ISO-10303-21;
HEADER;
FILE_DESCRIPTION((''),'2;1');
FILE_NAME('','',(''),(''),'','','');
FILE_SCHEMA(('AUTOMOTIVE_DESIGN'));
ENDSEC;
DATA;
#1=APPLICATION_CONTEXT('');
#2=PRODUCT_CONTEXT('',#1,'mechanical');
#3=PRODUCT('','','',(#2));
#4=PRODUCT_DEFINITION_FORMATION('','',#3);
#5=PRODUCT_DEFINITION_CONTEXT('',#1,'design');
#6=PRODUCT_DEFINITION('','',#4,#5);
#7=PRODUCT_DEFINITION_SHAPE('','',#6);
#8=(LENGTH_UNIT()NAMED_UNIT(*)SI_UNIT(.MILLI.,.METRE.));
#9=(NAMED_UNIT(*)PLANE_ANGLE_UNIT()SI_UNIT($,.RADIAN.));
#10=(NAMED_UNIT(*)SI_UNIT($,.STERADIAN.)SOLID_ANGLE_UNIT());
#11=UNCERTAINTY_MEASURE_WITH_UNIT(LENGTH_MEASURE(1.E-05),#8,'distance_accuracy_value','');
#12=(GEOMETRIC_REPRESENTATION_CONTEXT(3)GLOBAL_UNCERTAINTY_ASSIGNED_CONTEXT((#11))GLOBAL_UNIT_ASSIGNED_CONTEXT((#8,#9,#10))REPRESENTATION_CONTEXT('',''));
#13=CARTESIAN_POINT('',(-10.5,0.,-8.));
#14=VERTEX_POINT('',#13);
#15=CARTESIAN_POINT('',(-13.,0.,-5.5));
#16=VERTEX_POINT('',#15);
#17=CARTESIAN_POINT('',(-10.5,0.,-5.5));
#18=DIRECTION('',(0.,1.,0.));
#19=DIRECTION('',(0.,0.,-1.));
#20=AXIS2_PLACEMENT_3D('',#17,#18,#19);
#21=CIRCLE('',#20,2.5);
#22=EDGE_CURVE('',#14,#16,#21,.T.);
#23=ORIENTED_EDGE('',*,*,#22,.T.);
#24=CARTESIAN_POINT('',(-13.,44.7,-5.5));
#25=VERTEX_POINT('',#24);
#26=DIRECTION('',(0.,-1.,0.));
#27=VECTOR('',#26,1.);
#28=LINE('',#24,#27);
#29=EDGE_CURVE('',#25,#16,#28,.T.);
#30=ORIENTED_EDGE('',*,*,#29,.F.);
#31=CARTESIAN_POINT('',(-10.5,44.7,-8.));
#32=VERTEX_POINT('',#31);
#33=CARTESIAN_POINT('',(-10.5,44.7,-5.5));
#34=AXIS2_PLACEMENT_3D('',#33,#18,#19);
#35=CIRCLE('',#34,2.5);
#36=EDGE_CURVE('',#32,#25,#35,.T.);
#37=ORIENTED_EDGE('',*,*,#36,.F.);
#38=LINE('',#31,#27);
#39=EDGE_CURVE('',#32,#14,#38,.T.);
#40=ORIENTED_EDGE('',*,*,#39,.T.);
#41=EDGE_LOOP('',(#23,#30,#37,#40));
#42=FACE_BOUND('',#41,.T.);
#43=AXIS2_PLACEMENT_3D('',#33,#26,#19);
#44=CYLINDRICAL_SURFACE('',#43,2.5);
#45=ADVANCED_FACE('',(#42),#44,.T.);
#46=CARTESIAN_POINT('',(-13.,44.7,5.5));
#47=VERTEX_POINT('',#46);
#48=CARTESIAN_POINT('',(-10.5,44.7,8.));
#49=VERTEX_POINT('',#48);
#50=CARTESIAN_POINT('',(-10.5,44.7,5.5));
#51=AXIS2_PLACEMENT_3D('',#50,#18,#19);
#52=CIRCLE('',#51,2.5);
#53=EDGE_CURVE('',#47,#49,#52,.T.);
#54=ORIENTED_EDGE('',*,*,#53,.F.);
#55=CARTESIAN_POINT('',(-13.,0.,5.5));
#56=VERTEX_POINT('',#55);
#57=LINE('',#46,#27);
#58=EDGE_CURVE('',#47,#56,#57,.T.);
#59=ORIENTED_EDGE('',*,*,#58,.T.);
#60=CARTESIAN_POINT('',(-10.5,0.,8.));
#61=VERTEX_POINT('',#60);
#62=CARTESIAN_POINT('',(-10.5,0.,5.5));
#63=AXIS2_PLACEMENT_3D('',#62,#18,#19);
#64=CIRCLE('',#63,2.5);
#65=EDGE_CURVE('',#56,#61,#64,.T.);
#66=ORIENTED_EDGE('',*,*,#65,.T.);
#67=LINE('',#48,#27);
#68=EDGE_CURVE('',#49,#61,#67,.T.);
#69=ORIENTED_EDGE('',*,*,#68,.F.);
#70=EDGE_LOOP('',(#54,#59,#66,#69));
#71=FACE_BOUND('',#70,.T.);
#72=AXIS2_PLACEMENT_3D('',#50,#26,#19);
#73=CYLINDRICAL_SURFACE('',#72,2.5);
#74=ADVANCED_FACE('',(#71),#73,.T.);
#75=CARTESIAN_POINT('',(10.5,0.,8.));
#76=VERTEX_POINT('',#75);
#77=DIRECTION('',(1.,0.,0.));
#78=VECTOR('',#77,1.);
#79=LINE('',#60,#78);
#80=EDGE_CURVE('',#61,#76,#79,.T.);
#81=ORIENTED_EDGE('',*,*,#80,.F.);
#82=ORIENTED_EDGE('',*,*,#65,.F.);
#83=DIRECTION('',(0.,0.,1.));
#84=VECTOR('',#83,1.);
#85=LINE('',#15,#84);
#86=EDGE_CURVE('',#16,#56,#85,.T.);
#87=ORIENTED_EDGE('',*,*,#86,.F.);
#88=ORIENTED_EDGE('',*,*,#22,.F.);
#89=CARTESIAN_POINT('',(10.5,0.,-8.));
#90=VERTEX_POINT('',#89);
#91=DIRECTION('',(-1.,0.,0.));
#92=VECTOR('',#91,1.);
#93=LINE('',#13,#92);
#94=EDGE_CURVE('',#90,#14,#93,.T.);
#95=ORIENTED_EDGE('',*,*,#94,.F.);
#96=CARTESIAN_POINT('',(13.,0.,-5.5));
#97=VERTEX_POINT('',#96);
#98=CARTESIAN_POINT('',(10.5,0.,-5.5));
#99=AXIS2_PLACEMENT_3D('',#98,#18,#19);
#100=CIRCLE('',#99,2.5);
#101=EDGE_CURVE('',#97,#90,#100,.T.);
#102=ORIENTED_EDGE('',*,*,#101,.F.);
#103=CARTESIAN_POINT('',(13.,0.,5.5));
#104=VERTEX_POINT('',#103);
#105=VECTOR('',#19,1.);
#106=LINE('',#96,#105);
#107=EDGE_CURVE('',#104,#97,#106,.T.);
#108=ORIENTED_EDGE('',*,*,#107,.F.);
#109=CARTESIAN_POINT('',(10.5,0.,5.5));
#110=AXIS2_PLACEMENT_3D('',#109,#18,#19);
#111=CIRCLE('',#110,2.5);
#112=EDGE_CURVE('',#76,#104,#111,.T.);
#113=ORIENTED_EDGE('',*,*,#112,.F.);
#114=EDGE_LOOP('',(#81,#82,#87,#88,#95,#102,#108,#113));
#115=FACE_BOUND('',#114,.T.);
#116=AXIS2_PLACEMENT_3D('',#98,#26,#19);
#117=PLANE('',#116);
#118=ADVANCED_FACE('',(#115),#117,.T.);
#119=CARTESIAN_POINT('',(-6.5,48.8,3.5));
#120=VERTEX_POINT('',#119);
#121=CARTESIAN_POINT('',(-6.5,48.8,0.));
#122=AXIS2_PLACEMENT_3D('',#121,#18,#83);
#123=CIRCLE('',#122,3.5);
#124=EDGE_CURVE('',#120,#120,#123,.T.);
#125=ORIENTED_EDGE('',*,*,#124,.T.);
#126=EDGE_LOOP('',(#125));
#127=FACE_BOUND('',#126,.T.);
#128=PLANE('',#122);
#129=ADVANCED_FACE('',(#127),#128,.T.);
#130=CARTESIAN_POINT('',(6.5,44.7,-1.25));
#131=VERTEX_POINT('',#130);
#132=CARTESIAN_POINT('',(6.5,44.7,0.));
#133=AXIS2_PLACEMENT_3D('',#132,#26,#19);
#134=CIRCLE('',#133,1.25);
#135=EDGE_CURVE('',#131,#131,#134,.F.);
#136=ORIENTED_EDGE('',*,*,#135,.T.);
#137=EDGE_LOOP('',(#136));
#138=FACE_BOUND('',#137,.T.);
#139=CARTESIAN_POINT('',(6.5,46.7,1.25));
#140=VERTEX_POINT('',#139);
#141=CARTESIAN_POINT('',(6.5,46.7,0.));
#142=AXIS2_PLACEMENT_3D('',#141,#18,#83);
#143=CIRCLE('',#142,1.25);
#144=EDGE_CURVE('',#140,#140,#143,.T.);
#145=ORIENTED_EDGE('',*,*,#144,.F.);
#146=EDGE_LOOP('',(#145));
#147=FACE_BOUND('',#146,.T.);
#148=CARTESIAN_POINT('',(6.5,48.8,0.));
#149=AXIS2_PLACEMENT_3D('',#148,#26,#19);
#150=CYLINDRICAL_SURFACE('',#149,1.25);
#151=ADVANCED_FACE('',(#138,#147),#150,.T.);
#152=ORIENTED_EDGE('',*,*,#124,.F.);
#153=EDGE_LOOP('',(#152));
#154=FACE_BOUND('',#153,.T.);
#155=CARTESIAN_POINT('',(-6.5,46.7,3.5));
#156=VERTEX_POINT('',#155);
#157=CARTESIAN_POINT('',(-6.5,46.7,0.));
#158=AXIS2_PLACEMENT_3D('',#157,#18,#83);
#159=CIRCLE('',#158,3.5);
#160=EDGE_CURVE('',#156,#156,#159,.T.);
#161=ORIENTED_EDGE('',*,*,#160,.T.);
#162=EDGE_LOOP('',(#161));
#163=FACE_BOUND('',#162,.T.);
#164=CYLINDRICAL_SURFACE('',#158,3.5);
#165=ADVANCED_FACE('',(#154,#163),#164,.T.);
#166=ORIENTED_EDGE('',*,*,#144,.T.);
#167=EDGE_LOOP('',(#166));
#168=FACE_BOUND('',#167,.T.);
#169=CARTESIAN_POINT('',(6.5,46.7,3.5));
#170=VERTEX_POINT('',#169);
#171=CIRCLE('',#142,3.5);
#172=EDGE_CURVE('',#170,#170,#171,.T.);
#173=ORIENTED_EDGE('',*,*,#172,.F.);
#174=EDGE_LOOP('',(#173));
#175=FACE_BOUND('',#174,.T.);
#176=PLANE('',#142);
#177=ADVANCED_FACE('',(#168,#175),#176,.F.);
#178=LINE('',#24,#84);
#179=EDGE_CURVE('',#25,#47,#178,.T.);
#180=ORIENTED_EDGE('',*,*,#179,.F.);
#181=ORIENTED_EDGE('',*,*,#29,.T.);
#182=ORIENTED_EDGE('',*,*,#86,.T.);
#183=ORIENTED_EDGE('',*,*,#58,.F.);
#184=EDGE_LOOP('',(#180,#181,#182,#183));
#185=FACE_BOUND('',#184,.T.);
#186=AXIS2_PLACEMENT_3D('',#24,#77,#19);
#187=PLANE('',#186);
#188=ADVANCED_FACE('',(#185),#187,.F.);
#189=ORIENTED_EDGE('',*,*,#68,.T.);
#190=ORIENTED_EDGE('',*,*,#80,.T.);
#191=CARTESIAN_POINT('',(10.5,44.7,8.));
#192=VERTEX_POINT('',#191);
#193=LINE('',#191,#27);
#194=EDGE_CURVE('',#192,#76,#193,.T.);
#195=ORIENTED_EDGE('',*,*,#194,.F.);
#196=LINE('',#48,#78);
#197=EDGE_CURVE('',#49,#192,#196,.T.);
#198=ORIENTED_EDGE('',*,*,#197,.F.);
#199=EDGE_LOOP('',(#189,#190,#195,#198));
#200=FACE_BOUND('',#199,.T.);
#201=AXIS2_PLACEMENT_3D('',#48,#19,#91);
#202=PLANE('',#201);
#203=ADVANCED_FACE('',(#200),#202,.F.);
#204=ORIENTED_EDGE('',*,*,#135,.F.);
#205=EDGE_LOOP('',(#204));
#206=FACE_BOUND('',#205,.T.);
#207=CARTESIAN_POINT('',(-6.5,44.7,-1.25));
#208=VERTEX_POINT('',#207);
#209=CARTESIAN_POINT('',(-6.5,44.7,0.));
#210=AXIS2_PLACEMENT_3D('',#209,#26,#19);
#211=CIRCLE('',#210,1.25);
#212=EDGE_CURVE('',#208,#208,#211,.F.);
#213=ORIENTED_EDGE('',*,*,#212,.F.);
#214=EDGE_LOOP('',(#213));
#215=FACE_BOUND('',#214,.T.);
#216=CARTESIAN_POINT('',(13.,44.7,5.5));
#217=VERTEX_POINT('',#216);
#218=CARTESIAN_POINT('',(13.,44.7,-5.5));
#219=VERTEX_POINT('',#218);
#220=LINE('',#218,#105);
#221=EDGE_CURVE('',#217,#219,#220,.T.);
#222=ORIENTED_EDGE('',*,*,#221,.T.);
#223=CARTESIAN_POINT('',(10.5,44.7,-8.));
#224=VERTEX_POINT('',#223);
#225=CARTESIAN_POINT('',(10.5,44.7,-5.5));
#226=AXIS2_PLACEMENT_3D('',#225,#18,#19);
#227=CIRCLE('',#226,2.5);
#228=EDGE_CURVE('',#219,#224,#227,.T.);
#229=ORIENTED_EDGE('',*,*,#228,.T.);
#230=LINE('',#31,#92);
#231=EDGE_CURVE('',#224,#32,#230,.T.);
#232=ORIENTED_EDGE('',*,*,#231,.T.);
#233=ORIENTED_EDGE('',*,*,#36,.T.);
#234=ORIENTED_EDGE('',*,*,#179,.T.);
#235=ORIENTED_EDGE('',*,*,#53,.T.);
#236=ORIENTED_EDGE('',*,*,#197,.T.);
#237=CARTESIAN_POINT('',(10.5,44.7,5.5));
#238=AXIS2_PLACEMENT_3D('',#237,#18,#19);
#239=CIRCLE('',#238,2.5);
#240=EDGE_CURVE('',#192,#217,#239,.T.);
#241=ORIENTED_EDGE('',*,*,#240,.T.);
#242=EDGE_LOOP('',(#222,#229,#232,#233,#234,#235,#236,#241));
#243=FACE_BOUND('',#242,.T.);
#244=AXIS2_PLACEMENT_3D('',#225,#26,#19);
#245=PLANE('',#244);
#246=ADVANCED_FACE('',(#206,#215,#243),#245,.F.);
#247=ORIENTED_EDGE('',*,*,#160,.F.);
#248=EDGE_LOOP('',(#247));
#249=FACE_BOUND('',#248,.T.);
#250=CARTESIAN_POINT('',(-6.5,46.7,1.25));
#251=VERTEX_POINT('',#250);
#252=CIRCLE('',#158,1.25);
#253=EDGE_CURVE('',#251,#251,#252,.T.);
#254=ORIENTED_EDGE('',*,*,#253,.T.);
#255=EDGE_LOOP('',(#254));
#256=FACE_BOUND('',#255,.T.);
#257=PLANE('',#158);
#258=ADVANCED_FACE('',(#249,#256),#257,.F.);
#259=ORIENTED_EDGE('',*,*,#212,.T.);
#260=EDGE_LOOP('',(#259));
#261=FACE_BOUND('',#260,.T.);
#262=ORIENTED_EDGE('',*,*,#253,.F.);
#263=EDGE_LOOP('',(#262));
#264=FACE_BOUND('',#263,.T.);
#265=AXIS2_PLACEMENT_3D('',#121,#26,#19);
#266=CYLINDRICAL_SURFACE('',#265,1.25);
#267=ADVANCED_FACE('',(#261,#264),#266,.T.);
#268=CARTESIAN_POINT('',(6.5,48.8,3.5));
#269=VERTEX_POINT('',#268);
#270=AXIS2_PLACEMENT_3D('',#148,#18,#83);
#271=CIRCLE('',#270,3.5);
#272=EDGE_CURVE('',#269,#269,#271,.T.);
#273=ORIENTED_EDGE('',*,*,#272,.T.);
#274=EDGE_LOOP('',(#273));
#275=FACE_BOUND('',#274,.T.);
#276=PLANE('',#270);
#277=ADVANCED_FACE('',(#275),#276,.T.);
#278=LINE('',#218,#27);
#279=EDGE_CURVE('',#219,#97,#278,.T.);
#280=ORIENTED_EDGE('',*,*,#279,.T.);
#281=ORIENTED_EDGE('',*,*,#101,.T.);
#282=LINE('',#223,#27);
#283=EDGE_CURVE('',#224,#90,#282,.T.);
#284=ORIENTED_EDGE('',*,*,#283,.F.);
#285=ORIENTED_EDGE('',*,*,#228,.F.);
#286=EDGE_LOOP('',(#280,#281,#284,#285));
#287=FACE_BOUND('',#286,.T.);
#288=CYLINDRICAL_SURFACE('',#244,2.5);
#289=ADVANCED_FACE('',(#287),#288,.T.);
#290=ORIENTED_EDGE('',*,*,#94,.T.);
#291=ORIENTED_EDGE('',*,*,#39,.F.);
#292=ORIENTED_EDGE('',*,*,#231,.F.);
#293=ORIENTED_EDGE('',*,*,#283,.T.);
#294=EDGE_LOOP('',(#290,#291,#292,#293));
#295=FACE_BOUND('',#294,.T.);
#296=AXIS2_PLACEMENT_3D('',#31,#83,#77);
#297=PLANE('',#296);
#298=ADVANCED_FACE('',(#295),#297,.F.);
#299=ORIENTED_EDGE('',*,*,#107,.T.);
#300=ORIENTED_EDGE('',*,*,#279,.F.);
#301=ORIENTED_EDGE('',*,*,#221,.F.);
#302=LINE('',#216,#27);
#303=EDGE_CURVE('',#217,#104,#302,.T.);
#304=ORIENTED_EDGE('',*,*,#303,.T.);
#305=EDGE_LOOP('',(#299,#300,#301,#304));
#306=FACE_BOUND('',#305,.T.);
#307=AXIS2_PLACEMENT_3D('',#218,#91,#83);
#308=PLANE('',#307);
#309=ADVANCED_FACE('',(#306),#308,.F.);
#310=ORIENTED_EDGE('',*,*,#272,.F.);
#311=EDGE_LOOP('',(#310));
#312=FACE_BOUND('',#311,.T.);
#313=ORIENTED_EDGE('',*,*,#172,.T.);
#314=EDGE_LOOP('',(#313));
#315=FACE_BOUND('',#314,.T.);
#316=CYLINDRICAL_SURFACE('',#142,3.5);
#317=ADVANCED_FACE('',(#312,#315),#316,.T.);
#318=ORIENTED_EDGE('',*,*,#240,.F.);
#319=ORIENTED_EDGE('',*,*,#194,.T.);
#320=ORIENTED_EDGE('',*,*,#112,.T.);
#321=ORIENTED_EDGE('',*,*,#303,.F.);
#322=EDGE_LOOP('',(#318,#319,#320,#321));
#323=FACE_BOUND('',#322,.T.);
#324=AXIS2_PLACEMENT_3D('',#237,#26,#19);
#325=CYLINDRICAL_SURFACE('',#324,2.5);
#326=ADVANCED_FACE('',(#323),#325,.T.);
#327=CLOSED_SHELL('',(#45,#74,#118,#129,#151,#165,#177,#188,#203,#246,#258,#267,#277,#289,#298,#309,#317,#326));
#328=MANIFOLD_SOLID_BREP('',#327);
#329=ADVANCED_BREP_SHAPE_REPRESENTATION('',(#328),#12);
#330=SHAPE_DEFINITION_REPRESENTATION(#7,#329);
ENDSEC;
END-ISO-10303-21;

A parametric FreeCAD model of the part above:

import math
import FreeCAD as App
import Part
import Sketcher
from FreeCAD import Vector

doc = App.newDocument("Part")
body = doc.addObject("PartDesign::Body", "Body")

sketch1 = body.newObject("Sketcher::SketchObject", "Sketch")
sketch1.AttachmentSupport = (doc.getObject("XZ_Plane"), [""])
sketch1.MapMode = "FlatFace"
sketch1.addGeometry([
    Part.LineSegment(Vector(10.5, -8, 0), Vector(-10.5, -8, 0)),
    Part.ArcOfCircle(Part.Circle(Vector(-10.5, -5.5, 0), Vector(0, 0, 1), 2.5), math.radians(180), math.radians(270)),
    Part.LineSegment(Vector(-13, -5.5, 0), Vector(-13, 5.5, 0)),
    Part.ArcOfCircle(Part.Circle(Vector(-10.5, 5.5, 0), Vector(0, 0, 1), 2.5), math.radians(90), math.radians(180)),
    Part.LineSegment(Vector(-10.5, 8, 0), Vector(10.5, 8, 0)),
    Part.ArcOfCircle(Part.Circle(Vector(10.5, 5.5, 0), Vector(0, 0, 1), 2.5), math.radians(0), math.radians(90)),
    Part.LineSegment(Vector(13, 5.5, 0), Vector(13, -5.5, 0)),
    Part.ArcOfCircle(Part.Circle(Vector(10.5, -5.5, 0), Vector(0, 0, 1), 2.5), math.radians(-90), math.radians(0)),
], False)
sketch1.addConstraint([
    Sketcher.Constraint("Tangent", 0, 2, 1, 2),
    Sketcher.Constraint("Tangent", 1, 1, 2, 1),
    Sketcher.Constraint("Tangent", 2, 2, 3, 2),
    Sketcher.Constraint("Tangent", 3, 1, 4, 1),
    Sketcher.Constraint("Tangent", 4, 2, 5, 2),
    Sketcher.Constraint("Tangent", 5, 1, 6, 1),
    Sketcher.Constraint("Tangent", 6, 2, 7, 2),
    Sketcher.Constraint("Tangent", 7, 1, 0, 1),
    Sketcher.Constraint("Horizontal", 0),
    Sketcher.Constraint("Vertical", 2),
    Sketcher.Constraint("Horizontal", 4),
    Sketcher.Constraint("Vertical", 6),
    Sketcher.Constraint("Equal", 1, 3),
    Sketcher.Constraint("Equal", 3, 5),
    Sketcher.Constraint("Equal", 5, 7),
    Sketcher.Constraint("Symmetric", 1, 3, 5, 3, -1, 1),
    Sketcher.Constraint("Radius", 1, 2.5),
    Sketcher.Constraint("DistanceX", 0, 2, 0, 1, 21.0),
    Sketcher.Constraint("DistanceY", 2, 1, 2, 2, 11.0),
])
pad1 = body.newObject("PartDesign::Pad", "Pad")
pad1.Profile = sketch1
pad1.Length = 44.7
pad1.Reversed = True

sketch2 = body.newObject("Sketcher::SketchObject", "Sketch001")
sketch2.AttachmentSupport = (doc.getObject("XZ_Plane"), [""])
sketch2.MapMode = "FlatFace"
sketch2.AttachmentOffset = App.Placement(Vector(0, 0, -44.7), App.Rotation())
sketch2.addGeometry([
    Part.Circle(Vector(-6.5, 0, 0), Vector(0, 0, 1), 1.2),
    Part.Circle(Vector(6.5, 0, 0), Vector(0, 0, 1), 1.2),
], False)
sketch2.addConstraint([
    Sketcher.Constraint("Equal", 0, 1),
    Sketcher.Constraint("Symmetric", 0, 3, 1, 3, -1, 1),
    Sketcher.Constraint("PointOnObject", 0, 3, -1),
    Sketcher.Constraint("Diameter", 0, 2.5),
    Sketcher.Constraint("DistanceX", 0, 3, 1, 3, 13.0),
])
pad2 = body.newObject("PartDesign::Pad", "Pad001")
pad2.Profile = sketch2
pad2.Length = 4.1
pad2.Reversed = True

sketch3 = body.newObject("Sketcher::SketchObject", "Sketch002")
sketch3.AttachmentSupport = (doc.getObject("XZ_Plane"), [""])
sketch3.MapMode = "FlatFace"
sketch3.AttachmentOffset = App.Placement(Vector(0, 0, -48.8), App.Rotation())
sketch3.addGeometry([
    Part.Circle(Vector(-6.5, 0, 0), Vector(0, 0, 1), 3.5),
    Part.Circle(Vector(6.5, 0, 0), Vector(0, 0, 1), 3.5),
], False)
sketch3.addConstraint([
    Sketcher.Constraint("Equal", 0, 1),
    Sketcher.Constraint("Symmetric", 0, 3, 1, 3, -1, 1),
    Sketcher.Constraint("PointOnObject", 0, 3, -1),
    Sketcher.Constraint("Diameter", 0, 7.0),
    Sketcher.Constraint("DistanceX", 0, 3, 1, 3, 13.0),
])
pad3 = body.newObject("PartDesign::Pad", "Pad002")
pad3.Profile = sketch3
pad3.Length = 2.1

doc.recompute()
